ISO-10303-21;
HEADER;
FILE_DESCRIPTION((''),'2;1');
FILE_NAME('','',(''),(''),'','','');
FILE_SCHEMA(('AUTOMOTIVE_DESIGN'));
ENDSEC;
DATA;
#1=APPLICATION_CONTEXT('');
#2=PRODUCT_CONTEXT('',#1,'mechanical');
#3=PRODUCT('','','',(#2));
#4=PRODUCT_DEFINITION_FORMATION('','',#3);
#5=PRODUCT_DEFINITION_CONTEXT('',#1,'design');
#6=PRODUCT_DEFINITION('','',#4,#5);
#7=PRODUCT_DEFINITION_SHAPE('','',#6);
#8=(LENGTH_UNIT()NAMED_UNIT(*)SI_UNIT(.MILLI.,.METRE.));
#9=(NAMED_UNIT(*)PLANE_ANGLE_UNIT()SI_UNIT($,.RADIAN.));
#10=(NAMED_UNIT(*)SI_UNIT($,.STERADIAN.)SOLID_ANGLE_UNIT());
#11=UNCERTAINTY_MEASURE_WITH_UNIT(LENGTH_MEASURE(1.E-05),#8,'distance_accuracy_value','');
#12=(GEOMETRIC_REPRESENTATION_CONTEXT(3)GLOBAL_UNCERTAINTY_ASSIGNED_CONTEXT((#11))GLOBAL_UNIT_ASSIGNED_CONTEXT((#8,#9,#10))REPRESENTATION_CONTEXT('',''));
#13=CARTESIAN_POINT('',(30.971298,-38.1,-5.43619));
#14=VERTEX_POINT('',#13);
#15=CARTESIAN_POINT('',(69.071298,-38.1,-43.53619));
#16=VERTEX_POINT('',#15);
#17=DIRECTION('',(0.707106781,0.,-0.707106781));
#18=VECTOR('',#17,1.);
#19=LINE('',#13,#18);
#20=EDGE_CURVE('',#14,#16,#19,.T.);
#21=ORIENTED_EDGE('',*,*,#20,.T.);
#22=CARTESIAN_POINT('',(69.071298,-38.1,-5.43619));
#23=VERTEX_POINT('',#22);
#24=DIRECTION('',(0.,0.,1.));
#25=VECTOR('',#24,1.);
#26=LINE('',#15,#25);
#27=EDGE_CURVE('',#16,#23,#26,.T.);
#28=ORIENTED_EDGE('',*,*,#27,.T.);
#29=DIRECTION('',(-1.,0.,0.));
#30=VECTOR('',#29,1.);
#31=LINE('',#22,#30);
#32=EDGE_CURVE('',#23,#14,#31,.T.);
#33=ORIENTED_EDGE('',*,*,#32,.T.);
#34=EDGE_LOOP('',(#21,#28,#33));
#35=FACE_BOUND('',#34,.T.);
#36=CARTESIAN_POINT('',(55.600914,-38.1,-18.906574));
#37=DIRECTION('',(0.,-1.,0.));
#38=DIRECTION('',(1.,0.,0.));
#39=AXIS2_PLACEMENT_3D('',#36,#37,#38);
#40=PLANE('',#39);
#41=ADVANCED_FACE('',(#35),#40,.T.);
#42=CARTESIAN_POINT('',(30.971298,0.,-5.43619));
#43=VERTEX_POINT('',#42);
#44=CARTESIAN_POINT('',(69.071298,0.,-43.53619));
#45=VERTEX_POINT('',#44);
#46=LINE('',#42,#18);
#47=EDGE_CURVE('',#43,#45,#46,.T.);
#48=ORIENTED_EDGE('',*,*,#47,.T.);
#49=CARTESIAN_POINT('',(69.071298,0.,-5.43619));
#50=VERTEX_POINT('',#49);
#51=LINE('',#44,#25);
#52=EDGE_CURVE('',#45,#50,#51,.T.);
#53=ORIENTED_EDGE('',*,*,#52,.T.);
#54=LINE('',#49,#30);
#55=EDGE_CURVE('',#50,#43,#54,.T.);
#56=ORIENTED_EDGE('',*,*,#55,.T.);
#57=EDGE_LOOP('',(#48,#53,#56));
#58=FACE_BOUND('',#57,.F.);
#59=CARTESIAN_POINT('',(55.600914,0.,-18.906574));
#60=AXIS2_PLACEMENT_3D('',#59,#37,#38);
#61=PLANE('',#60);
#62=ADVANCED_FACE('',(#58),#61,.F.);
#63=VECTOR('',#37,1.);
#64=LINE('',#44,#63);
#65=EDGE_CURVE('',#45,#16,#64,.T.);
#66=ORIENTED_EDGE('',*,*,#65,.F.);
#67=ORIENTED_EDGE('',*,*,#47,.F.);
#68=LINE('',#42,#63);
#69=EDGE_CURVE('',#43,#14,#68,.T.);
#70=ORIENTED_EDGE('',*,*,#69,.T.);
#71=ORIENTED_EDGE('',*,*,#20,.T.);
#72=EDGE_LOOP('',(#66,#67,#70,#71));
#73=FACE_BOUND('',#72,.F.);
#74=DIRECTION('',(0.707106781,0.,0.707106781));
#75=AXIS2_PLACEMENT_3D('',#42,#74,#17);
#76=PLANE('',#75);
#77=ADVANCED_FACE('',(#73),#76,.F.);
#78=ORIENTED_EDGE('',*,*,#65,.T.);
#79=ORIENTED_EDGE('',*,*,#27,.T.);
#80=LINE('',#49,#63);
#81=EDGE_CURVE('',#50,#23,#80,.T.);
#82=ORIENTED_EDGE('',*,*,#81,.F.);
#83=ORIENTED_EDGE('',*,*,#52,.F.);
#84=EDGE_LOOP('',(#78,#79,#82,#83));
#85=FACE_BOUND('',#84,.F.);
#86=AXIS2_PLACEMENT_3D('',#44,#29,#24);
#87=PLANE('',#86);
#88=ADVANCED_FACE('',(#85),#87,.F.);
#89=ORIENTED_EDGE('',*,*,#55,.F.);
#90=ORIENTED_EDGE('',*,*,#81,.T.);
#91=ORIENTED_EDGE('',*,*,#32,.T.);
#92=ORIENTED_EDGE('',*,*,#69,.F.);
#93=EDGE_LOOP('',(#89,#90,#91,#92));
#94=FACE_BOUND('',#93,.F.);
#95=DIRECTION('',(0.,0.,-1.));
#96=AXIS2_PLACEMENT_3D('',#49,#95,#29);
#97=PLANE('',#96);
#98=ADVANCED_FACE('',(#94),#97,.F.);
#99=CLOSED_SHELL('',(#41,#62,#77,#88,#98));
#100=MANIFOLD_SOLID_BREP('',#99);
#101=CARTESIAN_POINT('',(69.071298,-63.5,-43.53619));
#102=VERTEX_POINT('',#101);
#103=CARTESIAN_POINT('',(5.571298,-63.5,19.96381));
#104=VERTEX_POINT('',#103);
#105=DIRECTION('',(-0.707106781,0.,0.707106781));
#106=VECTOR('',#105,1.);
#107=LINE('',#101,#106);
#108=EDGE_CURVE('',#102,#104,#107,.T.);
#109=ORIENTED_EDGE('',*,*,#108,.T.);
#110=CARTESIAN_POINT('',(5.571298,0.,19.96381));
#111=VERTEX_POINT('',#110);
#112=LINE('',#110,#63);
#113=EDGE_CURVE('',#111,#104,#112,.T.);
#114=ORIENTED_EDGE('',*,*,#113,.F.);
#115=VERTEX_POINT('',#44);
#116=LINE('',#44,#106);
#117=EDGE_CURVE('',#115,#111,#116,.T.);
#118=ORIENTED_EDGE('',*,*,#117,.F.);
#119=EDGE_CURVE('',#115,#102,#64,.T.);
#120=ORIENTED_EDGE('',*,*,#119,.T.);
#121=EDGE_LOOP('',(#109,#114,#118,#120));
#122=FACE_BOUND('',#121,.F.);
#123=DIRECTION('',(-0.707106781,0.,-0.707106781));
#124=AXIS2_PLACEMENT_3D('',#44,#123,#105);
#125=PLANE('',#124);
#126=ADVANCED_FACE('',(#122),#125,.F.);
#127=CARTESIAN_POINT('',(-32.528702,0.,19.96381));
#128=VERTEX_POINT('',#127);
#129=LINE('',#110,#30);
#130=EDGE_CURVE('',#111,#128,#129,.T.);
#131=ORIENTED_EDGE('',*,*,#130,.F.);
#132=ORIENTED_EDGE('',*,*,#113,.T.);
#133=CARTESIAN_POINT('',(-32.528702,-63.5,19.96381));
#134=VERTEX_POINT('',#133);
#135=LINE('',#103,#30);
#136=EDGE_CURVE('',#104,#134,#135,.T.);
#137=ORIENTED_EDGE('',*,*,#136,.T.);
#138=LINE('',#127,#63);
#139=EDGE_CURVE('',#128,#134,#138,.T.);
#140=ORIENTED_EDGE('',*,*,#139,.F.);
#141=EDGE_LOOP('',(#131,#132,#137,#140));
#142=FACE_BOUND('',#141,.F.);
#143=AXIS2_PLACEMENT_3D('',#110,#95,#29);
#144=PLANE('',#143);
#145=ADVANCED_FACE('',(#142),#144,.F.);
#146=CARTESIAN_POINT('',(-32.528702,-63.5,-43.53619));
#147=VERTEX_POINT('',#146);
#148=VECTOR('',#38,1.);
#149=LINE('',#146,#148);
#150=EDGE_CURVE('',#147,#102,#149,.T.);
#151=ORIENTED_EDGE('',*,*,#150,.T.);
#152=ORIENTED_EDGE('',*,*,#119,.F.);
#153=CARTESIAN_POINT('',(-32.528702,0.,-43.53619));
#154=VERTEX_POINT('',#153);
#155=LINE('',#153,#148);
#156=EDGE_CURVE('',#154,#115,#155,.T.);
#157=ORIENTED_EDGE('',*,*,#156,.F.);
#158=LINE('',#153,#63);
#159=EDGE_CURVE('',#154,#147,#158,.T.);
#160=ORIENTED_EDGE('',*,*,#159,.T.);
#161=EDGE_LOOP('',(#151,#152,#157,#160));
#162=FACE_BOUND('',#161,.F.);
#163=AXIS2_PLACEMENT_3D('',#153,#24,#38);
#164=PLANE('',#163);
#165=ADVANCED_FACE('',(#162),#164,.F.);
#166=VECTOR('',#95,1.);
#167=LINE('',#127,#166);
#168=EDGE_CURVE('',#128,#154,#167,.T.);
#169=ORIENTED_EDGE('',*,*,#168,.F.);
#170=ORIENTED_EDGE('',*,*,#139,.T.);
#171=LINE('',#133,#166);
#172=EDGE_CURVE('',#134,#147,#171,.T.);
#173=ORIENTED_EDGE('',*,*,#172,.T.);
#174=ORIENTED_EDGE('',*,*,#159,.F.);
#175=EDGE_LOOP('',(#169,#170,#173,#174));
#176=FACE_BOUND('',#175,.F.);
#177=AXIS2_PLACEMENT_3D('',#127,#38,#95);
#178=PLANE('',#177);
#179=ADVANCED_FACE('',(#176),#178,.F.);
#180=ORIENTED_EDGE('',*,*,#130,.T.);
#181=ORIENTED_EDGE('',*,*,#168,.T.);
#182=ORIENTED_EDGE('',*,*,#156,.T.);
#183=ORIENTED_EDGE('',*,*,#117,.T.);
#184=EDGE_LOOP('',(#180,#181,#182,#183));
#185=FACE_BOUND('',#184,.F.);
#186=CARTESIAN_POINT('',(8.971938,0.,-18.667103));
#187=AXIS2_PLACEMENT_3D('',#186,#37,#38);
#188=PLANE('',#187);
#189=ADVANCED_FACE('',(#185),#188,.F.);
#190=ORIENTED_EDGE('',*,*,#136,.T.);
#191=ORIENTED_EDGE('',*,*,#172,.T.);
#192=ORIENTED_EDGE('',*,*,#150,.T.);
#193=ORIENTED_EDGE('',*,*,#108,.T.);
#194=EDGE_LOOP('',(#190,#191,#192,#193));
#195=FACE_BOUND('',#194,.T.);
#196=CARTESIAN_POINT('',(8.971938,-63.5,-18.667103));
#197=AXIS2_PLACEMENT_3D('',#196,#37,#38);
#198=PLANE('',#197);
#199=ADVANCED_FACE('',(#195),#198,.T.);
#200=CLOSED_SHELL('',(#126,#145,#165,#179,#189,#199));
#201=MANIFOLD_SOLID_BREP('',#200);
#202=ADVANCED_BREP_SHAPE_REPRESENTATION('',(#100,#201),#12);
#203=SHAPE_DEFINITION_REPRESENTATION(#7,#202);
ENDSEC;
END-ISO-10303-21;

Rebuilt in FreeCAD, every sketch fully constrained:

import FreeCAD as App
import Part
import Sketcher
Q = App.Units.Quantity


def add_polygon(sketch, points):
    """Adds a closed chain of lines whose ends are joined by coincident constraints."""
    first, n = sketch.GeometryCount, len(points)
    for a, b in zip(points, points[1:] + points[:1]):
        sketch.addGeometry(Part.LineSegment(App.Vector(*a, 0), App.Vector(*b, 0)), False)
    for i in range(n):
        sketch.addConstraint(Sketcher.Constraint("Coincident", first + i, 2, first + (i + 1) % n, 1))

doc = App.newDocument("Part")
body = doc.addObject("PartDesign::Body", "Body")

# Sketch on XZ plane
sketch1 = body.newObject("Sketcher::SketchObject", "Sketch")
sketch1.AttachmentSupport = (doc.getObject("XZ_Plane"), [""])
sketch1.MapMode = "FlatFace"
add_polygon(sketch1, [(-33, 20), (-33, -44), (69, -44), (6, 20)])  # lines 0-3
sketch1.addConstraint(Sketcher.Constraint("Vertical", 0))
sketch1.addConstraint(Sketcher.Constraint("Horizontal", 1))
sketch1.addConstraint(Sketcher.Constraint("Horizontal", 3))
sketch1.addConstraint(Sketcher.Constraint("DistanceX", 1, 1, 1, 2, Q("4 in")))
sketch1.addConstraint(Sketcher.Constraint("DistanceX", 3, 2, 3, 1, Q("1.5 in")))
sketch1.addConstraint(Sketcher.Constraint("DistanceY", 0, 2, 0, 1, Q("2.5 in")))
sketch1.addConstraint(Sketcher.Constraint("DistanceX", -1, 1, 1, 2, Q("69.071298 mm")))
sketch1.addConstraint(Sketcher.Constraint("DistanceY", 0, 2, -1, 1, Q("43.53619 mm")))
pad1 = body.newObject("PartDesign::Pad", "Pad")
pad1.Profile = sketch1
pad1.Length = Q("2.5 in")
body2 = doc.addObject("PartDesign::Body", "Body001")

# Sketch on XZ plane
sketch2 = body2.newObject("Sketcher::SketchObject", "Sketch001")
sketch2.AttachmentSupport = (doc.getObject("XZ_Plane001"), [""])
sketch2.MapMode = "FlatFace"
add_polygon(sketch2, [(31, -5), (69, -44), (69, -5)])  # lines 0-2
sketch2.addConstraint(Sketcher.Constraint("Vertical", 1))
sketch2.addConstraint(Sketcher.Constraint("Horizontal", 2))
sketch2.addConstraint(Sketcher.Constraint("Equal", 2, 1))
sketch2.addConstraint(Sketcher.Constraint("DistanceX", 2, 2, 2, 1, Q("1.5 in")))
sketch2.addConstraint(Sketcher.Constraint("DistanceX", -1, 1, 0, 2, Q("69.071298 mm")))
sketch2.addConstraint(Sketcher.Constraint("DistanceY", 0, 2, -1, 1, Q("43.53619 mm")))
pad2 = body2.newObject("PartDesign::Pad", "Pad001")
pad2.Profile = sketch2
pad2.Length = Q("1.5 in")

doc.recompute()
